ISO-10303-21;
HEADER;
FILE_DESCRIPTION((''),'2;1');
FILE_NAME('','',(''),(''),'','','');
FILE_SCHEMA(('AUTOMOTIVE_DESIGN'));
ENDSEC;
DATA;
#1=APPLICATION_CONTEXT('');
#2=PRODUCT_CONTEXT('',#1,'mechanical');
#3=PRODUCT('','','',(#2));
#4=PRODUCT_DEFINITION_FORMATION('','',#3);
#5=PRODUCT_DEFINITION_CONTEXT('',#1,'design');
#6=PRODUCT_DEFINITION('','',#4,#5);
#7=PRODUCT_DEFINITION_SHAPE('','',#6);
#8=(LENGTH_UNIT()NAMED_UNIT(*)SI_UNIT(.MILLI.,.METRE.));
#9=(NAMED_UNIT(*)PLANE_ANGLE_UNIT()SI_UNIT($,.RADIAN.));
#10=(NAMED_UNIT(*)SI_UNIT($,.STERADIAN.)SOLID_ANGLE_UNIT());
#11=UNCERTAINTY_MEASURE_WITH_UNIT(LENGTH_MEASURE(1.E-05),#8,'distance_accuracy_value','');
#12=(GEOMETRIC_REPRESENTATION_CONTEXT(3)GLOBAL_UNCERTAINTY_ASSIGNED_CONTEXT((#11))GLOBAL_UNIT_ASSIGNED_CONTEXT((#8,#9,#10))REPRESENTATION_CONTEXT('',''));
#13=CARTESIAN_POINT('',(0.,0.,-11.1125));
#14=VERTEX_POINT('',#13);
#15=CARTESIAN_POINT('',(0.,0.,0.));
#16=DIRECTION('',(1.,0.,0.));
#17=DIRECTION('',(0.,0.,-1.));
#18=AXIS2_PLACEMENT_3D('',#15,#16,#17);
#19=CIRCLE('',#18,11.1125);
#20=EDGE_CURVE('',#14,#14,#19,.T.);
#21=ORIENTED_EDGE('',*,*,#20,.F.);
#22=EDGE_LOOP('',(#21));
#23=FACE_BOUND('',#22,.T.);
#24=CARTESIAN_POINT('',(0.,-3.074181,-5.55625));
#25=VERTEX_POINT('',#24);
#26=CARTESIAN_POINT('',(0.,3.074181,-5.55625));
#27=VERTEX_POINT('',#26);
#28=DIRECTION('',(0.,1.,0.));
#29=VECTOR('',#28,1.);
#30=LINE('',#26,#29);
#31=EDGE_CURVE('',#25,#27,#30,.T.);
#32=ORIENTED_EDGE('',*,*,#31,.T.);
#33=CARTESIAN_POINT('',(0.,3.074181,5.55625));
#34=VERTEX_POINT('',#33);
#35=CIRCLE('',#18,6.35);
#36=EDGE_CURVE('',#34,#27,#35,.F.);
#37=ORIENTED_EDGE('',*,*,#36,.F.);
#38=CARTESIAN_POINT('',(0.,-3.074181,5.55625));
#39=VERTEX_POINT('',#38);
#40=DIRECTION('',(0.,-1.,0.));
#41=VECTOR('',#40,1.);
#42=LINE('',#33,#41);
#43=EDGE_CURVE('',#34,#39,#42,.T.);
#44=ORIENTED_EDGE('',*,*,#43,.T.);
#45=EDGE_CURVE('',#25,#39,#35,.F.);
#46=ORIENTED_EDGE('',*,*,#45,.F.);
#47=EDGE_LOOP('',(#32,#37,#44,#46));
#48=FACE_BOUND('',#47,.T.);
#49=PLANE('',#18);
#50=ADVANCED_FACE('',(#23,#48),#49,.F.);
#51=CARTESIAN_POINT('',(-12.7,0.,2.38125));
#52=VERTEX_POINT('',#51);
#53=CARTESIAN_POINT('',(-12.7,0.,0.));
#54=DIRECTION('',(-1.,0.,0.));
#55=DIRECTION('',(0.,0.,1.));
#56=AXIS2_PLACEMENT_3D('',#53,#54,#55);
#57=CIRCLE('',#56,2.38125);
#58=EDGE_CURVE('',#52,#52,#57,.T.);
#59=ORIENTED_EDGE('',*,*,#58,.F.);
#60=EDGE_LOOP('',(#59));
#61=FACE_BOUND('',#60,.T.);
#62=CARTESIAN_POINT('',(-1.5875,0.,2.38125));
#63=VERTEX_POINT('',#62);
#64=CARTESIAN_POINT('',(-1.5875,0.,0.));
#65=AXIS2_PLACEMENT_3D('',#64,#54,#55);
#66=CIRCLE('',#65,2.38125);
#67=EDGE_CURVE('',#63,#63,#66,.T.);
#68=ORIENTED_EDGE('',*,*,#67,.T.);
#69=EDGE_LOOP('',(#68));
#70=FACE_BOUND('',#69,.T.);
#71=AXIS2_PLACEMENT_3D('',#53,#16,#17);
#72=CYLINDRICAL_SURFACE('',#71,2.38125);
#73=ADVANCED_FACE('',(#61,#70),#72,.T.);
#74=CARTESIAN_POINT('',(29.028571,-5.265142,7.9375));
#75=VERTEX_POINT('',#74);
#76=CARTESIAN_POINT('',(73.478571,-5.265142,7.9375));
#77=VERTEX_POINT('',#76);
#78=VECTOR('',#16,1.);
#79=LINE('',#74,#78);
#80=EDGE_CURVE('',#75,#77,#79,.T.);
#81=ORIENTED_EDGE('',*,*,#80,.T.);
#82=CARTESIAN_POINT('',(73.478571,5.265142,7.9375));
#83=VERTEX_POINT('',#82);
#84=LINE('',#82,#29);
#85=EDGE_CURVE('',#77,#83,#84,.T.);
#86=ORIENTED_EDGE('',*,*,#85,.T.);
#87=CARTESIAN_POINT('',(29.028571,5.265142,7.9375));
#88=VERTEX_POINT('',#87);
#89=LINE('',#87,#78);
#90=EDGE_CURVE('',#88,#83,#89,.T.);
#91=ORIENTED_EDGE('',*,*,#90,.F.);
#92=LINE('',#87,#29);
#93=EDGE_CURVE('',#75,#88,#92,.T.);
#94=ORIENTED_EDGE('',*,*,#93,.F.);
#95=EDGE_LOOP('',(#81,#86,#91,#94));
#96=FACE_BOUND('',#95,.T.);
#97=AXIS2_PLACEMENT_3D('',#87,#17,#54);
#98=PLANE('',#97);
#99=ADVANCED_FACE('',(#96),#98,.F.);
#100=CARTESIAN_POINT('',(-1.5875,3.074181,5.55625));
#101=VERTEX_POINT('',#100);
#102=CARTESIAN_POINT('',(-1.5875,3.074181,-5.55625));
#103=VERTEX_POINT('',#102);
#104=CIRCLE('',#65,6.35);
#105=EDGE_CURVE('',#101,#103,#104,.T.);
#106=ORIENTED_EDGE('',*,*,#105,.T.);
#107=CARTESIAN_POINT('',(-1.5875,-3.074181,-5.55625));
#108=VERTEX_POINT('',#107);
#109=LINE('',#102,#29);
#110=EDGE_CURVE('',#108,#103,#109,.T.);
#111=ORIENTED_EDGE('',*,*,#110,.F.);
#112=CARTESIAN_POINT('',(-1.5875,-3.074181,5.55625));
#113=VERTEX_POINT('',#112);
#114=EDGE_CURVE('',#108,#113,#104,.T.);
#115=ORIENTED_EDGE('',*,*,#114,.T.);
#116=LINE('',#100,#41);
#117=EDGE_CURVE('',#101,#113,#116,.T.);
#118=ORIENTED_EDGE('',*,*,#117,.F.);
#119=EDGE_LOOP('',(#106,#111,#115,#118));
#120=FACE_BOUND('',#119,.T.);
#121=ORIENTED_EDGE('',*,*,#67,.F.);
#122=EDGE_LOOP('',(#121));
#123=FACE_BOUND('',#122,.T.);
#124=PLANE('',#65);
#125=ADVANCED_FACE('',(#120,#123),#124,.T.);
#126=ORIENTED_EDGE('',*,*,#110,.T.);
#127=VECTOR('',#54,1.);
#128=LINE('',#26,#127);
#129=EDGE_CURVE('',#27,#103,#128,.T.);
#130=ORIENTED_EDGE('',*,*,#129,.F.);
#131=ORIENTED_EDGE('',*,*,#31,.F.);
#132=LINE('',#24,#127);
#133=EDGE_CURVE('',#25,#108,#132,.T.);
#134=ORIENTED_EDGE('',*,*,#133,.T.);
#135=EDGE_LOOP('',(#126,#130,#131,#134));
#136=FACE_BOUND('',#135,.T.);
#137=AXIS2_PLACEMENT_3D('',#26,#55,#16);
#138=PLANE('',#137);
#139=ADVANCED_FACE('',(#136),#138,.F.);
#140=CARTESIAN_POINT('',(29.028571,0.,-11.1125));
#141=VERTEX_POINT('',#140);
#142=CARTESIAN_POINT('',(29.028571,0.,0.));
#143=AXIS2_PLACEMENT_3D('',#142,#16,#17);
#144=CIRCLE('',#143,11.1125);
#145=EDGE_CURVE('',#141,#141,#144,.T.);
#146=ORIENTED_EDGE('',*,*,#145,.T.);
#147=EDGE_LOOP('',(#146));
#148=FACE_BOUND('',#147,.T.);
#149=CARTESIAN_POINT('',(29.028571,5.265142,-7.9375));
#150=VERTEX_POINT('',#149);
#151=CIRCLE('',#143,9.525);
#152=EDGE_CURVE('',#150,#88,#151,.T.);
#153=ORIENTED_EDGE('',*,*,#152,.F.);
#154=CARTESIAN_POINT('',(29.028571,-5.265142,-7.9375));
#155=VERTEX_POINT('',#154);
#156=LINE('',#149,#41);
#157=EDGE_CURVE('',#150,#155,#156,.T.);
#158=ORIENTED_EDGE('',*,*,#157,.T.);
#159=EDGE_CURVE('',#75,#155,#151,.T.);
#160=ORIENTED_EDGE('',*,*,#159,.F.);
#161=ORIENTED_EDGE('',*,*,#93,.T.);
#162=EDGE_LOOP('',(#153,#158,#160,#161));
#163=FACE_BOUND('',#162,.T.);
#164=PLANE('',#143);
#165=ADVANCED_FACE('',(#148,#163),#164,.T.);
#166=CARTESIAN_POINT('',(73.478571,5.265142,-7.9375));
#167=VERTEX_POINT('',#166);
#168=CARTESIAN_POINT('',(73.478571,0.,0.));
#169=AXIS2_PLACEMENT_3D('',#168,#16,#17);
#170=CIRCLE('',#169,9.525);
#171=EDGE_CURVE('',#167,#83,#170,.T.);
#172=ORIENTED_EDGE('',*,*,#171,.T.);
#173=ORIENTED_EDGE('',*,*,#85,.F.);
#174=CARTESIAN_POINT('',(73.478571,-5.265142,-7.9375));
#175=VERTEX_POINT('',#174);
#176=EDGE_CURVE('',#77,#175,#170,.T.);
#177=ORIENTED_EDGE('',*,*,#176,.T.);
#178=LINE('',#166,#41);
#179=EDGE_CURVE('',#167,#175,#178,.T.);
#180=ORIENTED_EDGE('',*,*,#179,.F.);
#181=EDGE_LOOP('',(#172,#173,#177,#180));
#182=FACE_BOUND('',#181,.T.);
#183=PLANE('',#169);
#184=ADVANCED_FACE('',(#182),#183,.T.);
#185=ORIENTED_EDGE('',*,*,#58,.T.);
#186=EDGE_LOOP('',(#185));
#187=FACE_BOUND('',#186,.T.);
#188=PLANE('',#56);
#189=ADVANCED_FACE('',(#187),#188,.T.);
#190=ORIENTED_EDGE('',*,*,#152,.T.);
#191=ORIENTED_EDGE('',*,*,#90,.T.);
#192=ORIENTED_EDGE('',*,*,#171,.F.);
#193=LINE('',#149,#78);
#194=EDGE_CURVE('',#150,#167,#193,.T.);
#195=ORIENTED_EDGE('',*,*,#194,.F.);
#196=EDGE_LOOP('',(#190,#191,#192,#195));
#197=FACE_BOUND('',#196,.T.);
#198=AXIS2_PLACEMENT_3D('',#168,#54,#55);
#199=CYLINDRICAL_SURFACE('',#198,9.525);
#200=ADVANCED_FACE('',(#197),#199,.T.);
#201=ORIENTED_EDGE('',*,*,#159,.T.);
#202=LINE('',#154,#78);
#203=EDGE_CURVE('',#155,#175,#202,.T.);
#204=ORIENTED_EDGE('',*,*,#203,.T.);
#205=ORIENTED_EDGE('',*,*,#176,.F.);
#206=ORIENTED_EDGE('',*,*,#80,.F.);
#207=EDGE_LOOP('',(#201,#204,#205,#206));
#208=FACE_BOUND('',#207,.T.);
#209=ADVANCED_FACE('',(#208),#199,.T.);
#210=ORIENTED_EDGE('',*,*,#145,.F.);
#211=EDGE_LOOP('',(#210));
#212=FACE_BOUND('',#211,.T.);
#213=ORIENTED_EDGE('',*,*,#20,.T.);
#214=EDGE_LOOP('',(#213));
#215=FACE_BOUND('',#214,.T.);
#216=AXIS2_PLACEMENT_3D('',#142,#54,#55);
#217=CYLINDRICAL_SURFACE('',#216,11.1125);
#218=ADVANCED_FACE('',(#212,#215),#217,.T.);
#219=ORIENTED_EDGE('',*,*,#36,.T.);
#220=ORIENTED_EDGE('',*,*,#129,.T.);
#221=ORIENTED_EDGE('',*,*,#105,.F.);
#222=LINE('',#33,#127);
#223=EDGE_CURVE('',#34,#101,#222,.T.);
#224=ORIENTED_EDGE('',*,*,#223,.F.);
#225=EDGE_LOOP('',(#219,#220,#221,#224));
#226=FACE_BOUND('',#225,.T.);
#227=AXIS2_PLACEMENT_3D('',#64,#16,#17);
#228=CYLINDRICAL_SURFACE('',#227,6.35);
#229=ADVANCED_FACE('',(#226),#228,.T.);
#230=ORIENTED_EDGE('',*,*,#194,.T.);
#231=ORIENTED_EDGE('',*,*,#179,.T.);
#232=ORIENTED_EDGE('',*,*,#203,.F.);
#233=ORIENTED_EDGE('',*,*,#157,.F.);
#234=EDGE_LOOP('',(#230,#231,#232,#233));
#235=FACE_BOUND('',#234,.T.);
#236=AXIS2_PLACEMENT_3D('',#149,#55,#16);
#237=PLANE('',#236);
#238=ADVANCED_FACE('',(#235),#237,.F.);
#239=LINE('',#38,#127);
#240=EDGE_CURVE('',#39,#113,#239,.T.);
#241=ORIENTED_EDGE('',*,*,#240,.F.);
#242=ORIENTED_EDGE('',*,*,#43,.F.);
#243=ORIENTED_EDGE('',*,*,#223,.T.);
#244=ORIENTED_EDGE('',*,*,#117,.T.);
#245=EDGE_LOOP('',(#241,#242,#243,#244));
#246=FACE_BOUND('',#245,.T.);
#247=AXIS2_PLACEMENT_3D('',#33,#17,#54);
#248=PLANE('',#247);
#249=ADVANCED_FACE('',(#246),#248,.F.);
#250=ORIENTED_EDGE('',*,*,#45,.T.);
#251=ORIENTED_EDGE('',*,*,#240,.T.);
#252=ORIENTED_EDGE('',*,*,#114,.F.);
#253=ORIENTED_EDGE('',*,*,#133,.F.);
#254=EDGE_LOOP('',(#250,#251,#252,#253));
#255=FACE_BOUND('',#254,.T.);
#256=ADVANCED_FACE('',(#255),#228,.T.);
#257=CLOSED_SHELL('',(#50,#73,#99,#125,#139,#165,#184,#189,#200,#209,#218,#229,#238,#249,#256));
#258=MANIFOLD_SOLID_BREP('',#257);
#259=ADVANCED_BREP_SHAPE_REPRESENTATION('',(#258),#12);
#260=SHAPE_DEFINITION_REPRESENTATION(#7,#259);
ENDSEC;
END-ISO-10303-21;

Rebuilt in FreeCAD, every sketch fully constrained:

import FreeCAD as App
import Part
import Sketcher

V = App.Vector
Q = App.Units.Quantity


def add_polygon(sketch, points):
    """Adds a closed chain of lines whose ends are joined by coincident constraints."""
    first, n = sketch.GeometryCount, len(points)
    for a, b in zip(points, points[1:] + points[:1]):
        sketch.addGeometry(Part.LineSegment(App.Vector(*a, 0), App.Vector(*b, 0)), False)
    for i in range(n):
        sketch.addConstraint(Sketcher.Constraint("Coincident", first + i, 2, first + (i + 1) % n, 1))

doc = App.newDocument("Part")
body = doc.addObject("PartDesign::Body", "Body")

# Sketch on YZ plane
sketch1 = body.newObject("Sketcher::SketchObject", "Sketch")
sketch1.AttachmentSupport = (doc.getObject("YZ_Plane"), [""])
sketch1.MapMode = "FlatFace"
sketch1.addGeometry(Part.Circle(V(0, 0, 0), V(0, 0, 1), 11), False)
sketch1.addConstraint([
    Sketcher.Constraint("Coincident", 0, 3, -1, 1),
    Sketcher.Constraint("Diameter", 0, Q("0.875 in")),
])
pad1 = body.newObject("PartDesign::Pad", "Pad")
pad1.Profile = sketch1
pad1.Length = 29.028571

# Sketch on YZ plane
sketch2 = body.newObject("Sketcher::SketchObject", "Sketch001")
sketch2.AttachmentSupport = (doc.getObject("YZ_Plane"), [""])
sketch2.MapMode = "FlatFace"
sketch2.AttachmentOffset = App.Placement(V(0, 0, 29.028571), App.Rotation())
sketch2.addGeometry(Part.Circle(V(0, 0, 0), V(0, 0, 1), 10), False)
sketch2.addConstraint([
    Sketcher.Constraint("Coincident", 0, 3, -1, 1),
    Sketcher.Constraint("Diameter", 0, Q("0.75 in")),
])
pad2 = body.newObject("PartDesign::Pad", "Pad001")
pad2.Profile = sketch2
pad2.Length = Q("1.75 in")

# Sketch on YZ plane
sketch3 = body.newObject("Sketcher::SketchObject", "Sketch002")
sketch3.AttachmentSupport = (doc.getObject("YZ_Plane"), [""])
sketch3.MapMode = "FlatFace"
sketch3.AttachmentOffset = App.Placement(V(0, 0, 73.478571), App.Rotation())
add_polygon(sketch3, [(5.3, 10.5), (-5.3, 10.5), (-5.3, 7.9), (5.3, 7.9)])  # lines 0-3
add_polygon(sketch3, [(5.3, -7.9), (-5.3, -7.9), (-5.3, -10.7), (5.3, -10.7)])  # lines 4-7
sketch3.addConstraint([
    Sketcher.Constraint("Horizontal", 0),
    Sketcher.Constraint("Vertical", 1),
    Sketcher.Constraint("Horizontal", 2),
    Sketcher.Constraint("Vertical", 3),
    Sketcher.Constraint("Horizontal", 4),
    Sketcher.Constraint("Vertical", 5),
    Sketcher.Constraint("Horizontal", 6),
    Sketcher.Constraint("Vertical", 7),
    Sketcher.Constraint("Symmetric", 2, 2, 4, 2, -1, 1),
    Sketcher.Constraint("Vertical", 1, 2, 4, 2),
    Sketcher.Constraint("Vertical", 3, 2, 6, 2),
    Sketcher.Constraint("DistanceY", -1, 1, 1, 2, Q("0.3125 in")),
    Sketcher.Constraint("DistanceY", 1, 2, 1, 1, 2.553411),
    Sketcher.Constraint("DistanceX", 0, 2, 0, 1, 10.530284),
    Sketcher.Constraint("DistanceY", 5, 2, 5, 1, 2.754607),
])
pocket1 = body.newObject("PartDesign::Pocket", "Pocket")
pocket1.Profile = sketch3
pocket1.Length = Q("1.75 in")

# Sketch on YZ plane
sketch4 = body.newObject("Sketcher::SketchObject", "Sketch003")
sketch4.AttachmentSupport = (doc.getObject("YZ_Plane"), [""])
sketch4.MapMode = "FlatFace"
sketch4.addGeometry(Part.Circle(V(0, 0, 0), V(0, 0, 1), 6), False)
sketch4.addConstraint([
    Sketcher.Constraint("Coincident", 0, 3, -1, 1),
    Sketcher.Constraint("Diameter", 0, Q("0.5 in")),
])
pad3 = body.newObject("PartDesign::Pad", "Pad002")
pad3.Profile = sketch4
pad3.Length = Q("0.0625 in")
pad3.Reversed = True

# Sketch on YZ plane
sketch5 = body.newObject("Sketcher::SketchObject", "Sketch004")
sketch5.AttachmentSupport = (doc.getObject("YZ_Plane"), [""])
sketch5.MapMode = "FlatFace"
sketch5.AttachmentOffset = App.Placement(V(0, 0, -0.0625 * 25.4), App.Rotation())
add_polygon(sketch5, [(3.1, -7.4), (-3.1, -7.4), (-3.1, -5.6), (3.1, -5.6)])  # lines 0-3
add_polygon(sketch5, [(3.1, 5.6), (-3.1, 5.6), (-3.1, 7.8), (3.1, 7.8)])  # lines 4-7
sketch5.addConstraint([
    Sketcher.Constraint("Horizontal", 0),
    Sketcher.Constraint("Vertical", 1),
    Sketcher.Constraint("Horizontal", 2),
    Sketcher.Constraint("Vertical", 3),
    Sketcher.Constraint("Horizontal", 4),
    Sketcher.Constraint("Vertical", 5),
    Sketcher.Constraint("Horizontal", 6),
    Sketcher.Constraint("Vertical", 7),
    Sketcher.Constraint("Symmetric", 2, 2, 4, 2, -1, 1),
    Sketcher.Constraint("Vertical", 1, 2, 4, 2),
    Sketcher.Constraint("Vertical", 3, 2, 6, 2),
    Sketcher.Constraint("DistanceY", 1, 2, -1, 1, Q("0.21875 in")),
    Sketcher.Constraint("DistanceX", 0, 2, 0, 1, 6.148361),
    Sketcher.Constraint("DistanceY", 1, 1, 1, 2, 1.859243),
    Sketcher.Constraint("DistanceY", 5, 1, 5, 2, 2.232892),
])
pocket2 = body.newObject("PartDesign::Pocket", "Pocket001")
pocket2.Profile = sketch5
pocket2.Length = Q("0.0625 in")
pocket2.Reversed = True

# Sketch on YZ plane
sketch6 = body.newObject("Sketcher::SketchObject", "Sketch005")
sketch6.AttachmentSupport = (doc.getObject("YZ_Plane"), [""])
sketch6.MapMode = "FlatFace"
sketch6.AttachmentOffset = App.Placement(V(0, 0, -0.0625 * 25.4), App.Rotation())
sketch6.addGeometry(Part.Circle(V(0, 0, 0), V(0, 0, 1), 2.4), False)
sketch6.addConstraint([
    Sketcher.Constraint("Coincident", 0, 3, -1, 1),
    Sketcher.Constraint("Diameter", 0, Q("0.1875 in")),
])
pad4 = body.newObject("PartDesign::Pad", "Pad003")
pad4.Profile = sketch6
pad4.Length = Q("0.4375 in")
pad4.Reversed = True

doc.recompute()
